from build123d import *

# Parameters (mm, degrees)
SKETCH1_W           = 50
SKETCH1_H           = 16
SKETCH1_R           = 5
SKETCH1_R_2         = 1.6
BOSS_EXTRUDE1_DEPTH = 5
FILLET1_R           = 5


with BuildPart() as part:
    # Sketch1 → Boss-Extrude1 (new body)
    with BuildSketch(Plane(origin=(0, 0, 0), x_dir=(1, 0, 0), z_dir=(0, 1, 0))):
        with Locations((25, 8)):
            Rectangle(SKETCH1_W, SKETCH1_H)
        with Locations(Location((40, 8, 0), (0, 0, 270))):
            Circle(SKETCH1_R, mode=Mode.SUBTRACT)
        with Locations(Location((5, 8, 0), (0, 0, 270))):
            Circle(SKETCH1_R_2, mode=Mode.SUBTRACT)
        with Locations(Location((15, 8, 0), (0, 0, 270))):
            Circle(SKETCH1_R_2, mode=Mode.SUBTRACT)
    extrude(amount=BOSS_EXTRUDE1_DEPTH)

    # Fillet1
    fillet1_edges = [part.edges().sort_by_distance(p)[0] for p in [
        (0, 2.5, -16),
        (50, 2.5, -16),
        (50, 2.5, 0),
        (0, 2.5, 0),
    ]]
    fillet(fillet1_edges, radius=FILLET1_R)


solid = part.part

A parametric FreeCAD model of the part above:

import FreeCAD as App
import Part
import Sketcher
Q = App.Units.Quantity


def edges_at(feature, points):
    """Names of the edges that pass closest to the given points."""
    edges = feature.Shape.Edges
    near = lambda p: min(range(len(edges)), key=lambda i: edges[i].distToShape(Part.Vertex(*p))[0])
    return sorted({f"Edge{near(p) + 1}" for p in points})

doc = App.newDocument("Part")
body = doc.addObject("PartDesign::Body", "Body")

# Sketch on XZ plane
sketch1 = body.newObject("Sketcher::SketchObject", "Sketch")
sketch1.AttachmentSupport = (doc.getObject("XZ_Plane"), [""])
sketch1.MapMode = "FlatFace"
sketch1.addGeometry([
    Part.LineSegment(App.Vector(0, -16, 0), App.Vector(0, 0, 0)),  # 0
    Part.LineSegment(App.Vector(0, 0, 0), App.Vector(50, 0, 0)),  # 1
    Part.LineSegment(App.Vector(50, 0, 0), App.Vector(50, -16, 0)),  # 2
    Part.LineSegment(App.Vector(50, -16, 0), App.Vector(0, -16, 0)),  # 3
    Part.Circle(App.Vector(5, -8, 0), App.Vector(0, 0, 1), 1.6),  # 4
    Part.Circle(App.Vector(15, -8, 0), App.Vector(0, 0, 1), 1.6),  # 5
    Part.Circle(App.Vector(40, -8, 0), App.Vector(0, 0, 1), 5),  # 6
], False)
sketch1.addConstraint([
    Sketcher.Constraint("Coincident", 0, 2, 1, 1),
    Sketcher.Constraint("Coincident", 1, 2, 2, 1),
    Sketcher.Constraint("Coincident", 2, 2, 3, 1),
    Sketcher.Constraint("Coincident", 3, 2, 0, 1),
    Sketcher.Constraint("Vertical", 0),
    Sketcher.Constraint("Horizontal", 1),
    Sketcher.Constraint("Vertical", 2),
    Sketcher.Constraint("Horizontal", 3),
    Sketcher.Constraint("Coincident", 0, 2, -1, 1),
    Sketcher.Constraint("Equal", 4, 5),
    Sketcher.Constraint("Horizontal", 4, 3, 5, 3),
    Sketcher.Constraint("Horizontal", 5, 3, 6, 3),
    Sketcher.Constraint("Diameter", 6, Q("10 mm")),
    Sketcher.Constraint("Diameter", 4, Q("3.2 mm")),
    Sketcher.Constraint("DistanceX", 1, 1, 1, 2, Q("50 mm")),
    Sketcher.Constraint("DistanceY", 0, 1, 0, 2, Q("16 mm")),
    Sketcher.Constraint("DistanceX", -1, 1, 4, 3, Q("5 mm")),
    Sketcher.Constraint("DistanceY", 4, 3, -1, 1, Q("8 mm")),
    Sketcher.Constraint("DistanceX", -1, 1, 5, 3, Q("15 mm")),
    Sketcher.Constraint("DistanceX", -1, 1, 6, 3, Q("40 mm")),
])
pad1 = body.newObject("PartDesign::Pad", "Pad")
pad1.Profile = sketch1
pad1.Length = 5
pad1.Reversed = True
doc.recompute()

fillet = body.newObject("PartDesign::Fillet", "Fillet")
fillet.Base = (pad1, edges_at(pad1, [
    (0, 2.5, -16),
    (50, 2.5, -16),
    (50, 2.5, 0),
    (0, 2.5, 0),
]))
fillet.Radius = 5

doc.recompute()
